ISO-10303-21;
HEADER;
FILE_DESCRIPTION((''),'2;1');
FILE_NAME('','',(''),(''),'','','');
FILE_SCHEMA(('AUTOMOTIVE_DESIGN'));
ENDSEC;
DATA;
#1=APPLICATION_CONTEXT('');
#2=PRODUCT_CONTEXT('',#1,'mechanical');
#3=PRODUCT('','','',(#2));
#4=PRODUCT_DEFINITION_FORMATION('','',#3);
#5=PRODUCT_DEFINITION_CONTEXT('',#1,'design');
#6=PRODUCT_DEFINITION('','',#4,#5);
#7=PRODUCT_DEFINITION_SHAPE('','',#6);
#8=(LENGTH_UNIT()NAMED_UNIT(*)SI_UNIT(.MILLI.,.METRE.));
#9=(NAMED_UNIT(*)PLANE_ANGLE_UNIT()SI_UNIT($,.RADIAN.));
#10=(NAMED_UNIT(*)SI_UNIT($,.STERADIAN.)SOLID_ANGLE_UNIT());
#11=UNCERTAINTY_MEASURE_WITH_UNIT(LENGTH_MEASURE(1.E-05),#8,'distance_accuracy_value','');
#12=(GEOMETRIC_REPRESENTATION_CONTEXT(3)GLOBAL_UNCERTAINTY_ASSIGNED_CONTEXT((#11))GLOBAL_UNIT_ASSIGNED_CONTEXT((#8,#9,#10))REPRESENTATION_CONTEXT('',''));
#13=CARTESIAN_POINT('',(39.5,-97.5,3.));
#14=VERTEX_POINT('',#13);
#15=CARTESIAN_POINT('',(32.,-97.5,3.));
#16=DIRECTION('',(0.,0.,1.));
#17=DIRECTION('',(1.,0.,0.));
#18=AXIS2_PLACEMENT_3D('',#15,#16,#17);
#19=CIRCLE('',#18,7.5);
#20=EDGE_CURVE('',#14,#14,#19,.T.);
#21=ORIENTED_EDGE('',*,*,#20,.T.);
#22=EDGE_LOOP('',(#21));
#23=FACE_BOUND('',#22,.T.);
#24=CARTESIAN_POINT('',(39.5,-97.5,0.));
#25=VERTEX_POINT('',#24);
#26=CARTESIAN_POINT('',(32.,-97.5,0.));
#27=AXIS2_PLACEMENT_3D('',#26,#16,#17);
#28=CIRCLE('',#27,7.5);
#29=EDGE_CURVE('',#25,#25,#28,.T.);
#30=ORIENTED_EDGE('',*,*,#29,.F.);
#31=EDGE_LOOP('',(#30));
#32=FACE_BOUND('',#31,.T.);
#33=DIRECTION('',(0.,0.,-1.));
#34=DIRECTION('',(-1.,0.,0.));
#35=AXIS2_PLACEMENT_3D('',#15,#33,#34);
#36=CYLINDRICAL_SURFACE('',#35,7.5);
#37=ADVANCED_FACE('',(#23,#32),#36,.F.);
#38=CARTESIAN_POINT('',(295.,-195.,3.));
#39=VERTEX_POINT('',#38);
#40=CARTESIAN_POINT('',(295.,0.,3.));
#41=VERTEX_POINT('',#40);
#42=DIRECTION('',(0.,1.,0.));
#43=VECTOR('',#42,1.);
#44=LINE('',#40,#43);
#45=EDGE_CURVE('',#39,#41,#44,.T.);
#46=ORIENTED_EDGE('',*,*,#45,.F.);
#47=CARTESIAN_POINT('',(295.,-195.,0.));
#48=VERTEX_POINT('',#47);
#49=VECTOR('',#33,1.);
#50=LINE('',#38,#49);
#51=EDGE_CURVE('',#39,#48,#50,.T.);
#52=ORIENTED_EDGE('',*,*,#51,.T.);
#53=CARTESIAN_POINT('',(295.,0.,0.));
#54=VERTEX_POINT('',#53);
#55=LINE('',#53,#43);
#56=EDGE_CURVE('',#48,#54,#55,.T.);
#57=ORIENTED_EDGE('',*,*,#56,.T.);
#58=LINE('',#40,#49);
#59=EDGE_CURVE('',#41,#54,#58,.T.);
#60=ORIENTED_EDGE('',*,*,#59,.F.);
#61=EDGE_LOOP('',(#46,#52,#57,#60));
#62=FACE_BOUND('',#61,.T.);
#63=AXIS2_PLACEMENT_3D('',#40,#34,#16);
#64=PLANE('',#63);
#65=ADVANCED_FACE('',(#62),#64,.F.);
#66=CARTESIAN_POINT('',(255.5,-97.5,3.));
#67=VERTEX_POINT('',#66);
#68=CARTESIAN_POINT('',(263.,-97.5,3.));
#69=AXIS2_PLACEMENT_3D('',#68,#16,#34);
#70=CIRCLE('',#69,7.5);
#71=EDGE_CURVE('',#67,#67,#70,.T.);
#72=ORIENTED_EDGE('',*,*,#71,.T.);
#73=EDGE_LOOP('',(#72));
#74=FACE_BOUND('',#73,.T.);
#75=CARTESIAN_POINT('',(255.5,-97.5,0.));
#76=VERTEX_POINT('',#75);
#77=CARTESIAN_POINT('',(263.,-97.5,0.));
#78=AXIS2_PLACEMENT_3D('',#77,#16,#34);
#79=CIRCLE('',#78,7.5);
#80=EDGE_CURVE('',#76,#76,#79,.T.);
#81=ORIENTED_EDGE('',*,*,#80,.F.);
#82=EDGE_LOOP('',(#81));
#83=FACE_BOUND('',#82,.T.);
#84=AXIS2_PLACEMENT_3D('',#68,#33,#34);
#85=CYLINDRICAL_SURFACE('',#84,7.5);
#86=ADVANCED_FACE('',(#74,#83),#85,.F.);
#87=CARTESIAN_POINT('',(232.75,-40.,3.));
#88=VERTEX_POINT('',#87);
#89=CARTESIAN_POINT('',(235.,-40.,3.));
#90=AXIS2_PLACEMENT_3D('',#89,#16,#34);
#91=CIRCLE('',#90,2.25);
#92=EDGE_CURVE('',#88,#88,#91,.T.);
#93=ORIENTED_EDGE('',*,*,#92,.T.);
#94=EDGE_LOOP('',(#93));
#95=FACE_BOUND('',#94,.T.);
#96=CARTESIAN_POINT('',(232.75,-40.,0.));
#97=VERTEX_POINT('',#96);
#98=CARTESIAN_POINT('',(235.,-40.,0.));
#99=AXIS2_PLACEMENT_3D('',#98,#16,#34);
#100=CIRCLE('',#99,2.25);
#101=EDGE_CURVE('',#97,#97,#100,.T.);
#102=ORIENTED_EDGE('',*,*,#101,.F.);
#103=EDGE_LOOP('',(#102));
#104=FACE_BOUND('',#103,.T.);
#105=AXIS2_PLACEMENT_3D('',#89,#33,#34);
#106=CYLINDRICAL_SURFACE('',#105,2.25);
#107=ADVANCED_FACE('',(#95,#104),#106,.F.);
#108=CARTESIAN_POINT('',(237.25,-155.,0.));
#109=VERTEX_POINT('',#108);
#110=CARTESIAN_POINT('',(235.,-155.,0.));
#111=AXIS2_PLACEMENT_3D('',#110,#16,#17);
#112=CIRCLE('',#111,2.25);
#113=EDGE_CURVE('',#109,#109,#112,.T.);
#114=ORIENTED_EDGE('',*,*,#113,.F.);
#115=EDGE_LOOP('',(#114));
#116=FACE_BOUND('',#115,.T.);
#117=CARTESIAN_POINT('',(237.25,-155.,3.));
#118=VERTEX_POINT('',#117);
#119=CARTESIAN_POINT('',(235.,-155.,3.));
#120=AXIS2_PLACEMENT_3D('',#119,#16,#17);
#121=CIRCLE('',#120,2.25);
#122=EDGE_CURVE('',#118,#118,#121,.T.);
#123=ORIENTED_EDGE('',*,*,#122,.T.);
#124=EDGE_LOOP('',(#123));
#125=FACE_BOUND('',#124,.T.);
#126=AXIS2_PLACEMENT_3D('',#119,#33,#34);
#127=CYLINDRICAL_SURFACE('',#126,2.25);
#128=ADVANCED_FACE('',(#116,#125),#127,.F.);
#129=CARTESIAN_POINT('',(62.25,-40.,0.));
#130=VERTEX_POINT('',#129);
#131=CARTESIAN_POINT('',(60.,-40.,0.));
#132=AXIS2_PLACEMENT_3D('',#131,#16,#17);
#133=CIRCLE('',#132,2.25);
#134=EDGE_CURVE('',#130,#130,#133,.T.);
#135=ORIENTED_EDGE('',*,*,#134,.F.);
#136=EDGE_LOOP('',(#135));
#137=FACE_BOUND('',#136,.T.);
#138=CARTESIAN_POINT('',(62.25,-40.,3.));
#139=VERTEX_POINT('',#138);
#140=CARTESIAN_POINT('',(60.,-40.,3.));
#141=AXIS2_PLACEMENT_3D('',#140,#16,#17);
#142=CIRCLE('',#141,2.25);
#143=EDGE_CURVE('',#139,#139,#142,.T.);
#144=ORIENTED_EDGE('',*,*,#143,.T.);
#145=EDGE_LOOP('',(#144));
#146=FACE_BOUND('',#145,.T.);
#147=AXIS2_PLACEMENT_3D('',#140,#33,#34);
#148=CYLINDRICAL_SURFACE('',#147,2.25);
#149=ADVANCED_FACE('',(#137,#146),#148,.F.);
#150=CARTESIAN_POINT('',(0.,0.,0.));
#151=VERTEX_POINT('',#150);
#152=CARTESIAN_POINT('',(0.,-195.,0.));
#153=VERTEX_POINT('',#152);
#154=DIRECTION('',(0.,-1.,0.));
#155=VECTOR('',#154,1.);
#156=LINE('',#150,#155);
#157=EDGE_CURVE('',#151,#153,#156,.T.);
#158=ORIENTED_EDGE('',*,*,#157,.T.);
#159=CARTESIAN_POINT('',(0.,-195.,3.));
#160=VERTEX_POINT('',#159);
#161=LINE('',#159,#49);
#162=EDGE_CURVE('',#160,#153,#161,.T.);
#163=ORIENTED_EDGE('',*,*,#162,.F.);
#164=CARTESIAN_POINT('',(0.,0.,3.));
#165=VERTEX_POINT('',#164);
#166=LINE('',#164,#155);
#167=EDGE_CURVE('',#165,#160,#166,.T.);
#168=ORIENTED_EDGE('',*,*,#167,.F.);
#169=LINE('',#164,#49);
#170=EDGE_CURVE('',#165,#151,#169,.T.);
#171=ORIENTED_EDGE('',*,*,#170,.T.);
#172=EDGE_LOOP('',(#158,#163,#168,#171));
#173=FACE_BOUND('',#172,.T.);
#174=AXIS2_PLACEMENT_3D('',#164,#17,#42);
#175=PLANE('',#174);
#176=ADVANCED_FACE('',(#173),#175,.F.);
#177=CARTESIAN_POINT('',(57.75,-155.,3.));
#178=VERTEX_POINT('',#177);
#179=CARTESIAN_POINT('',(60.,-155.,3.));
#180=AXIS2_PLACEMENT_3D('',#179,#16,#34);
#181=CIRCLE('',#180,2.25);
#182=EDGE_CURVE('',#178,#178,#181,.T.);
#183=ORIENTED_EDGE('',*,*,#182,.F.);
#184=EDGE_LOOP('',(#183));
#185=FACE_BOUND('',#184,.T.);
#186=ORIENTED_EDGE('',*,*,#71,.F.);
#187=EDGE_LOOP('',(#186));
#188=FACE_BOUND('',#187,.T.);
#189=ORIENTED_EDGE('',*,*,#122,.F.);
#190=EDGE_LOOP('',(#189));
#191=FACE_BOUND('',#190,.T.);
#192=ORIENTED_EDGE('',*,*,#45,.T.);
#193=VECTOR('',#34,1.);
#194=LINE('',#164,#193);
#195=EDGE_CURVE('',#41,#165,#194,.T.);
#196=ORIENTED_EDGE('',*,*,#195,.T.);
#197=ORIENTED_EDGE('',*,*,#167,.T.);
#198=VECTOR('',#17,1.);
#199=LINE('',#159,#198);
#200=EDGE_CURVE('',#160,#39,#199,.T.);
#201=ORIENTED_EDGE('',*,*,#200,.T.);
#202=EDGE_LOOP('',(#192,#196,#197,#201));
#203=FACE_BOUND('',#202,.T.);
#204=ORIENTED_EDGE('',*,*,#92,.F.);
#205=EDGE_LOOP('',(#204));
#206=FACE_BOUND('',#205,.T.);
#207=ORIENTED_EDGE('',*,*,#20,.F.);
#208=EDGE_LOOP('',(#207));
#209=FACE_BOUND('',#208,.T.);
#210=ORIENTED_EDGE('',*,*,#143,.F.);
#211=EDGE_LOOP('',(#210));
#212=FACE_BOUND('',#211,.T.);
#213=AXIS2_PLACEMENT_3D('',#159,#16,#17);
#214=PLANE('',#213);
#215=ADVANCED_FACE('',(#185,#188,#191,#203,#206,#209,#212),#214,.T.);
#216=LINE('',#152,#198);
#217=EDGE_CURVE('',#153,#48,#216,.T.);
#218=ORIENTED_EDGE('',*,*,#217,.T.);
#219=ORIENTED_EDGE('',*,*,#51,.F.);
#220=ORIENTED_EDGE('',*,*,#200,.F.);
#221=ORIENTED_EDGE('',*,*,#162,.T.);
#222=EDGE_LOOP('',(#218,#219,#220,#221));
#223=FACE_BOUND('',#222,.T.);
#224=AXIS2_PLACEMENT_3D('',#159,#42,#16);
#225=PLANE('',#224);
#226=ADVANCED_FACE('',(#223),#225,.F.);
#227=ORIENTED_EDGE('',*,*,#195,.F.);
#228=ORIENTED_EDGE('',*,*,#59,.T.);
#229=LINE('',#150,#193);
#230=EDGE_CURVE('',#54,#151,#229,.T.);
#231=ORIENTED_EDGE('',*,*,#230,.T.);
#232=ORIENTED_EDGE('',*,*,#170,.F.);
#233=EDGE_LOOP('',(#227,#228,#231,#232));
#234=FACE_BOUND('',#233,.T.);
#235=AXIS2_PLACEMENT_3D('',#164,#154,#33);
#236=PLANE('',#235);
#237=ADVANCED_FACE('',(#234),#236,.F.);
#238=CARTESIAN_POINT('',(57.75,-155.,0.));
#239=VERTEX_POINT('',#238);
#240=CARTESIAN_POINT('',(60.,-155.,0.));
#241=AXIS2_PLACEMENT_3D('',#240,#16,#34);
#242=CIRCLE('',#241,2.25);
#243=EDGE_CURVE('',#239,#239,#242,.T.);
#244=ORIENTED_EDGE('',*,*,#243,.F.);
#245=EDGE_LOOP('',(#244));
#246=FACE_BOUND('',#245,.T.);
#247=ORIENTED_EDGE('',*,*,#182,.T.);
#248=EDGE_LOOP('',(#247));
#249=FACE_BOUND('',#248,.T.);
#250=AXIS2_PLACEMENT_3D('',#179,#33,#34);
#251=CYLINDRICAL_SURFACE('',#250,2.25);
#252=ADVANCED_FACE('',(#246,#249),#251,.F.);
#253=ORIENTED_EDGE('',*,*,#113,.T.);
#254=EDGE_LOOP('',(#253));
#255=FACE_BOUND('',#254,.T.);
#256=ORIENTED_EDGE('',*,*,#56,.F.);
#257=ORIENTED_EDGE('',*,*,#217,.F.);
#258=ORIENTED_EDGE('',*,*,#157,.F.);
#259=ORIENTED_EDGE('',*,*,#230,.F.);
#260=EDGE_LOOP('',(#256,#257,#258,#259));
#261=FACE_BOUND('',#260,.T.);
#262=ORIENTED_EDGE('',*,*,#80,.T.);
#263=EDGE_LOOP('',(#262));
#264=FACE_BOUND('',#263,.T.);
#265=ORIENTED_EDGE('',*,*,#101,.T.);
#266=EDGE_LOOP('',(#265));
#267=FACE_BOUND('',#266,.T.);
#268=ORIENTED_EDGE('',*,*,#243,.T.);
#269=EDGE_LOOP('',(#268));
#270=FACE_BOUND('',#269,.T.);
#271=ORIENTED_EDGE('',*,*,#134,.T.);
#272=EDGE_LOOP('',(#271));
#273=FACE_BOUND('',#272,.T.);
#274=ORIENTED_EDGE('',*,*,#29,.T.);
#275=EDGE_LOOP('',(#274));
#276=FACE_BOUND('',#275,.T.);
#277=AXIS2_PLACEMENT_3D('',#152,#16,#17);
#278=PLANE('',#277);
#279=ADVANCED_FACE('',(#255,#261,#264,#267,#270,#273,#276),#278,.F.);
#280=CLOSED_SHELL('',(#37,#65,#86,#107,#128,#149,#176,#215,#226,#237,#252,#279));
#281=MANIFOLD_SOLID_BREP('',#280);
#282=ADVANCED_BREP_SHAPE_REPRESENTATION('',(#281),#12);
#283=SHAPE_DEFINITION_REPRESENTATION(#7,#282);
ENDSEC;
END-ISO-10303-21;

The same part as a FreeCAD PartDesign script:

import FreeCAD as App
import Part
import Sketcher
from FreeCAD import Vector

doc = App.newDocument("Part")
body = doc.addObject("PartDesign::Body", "Body")

sketch1 = body.newObject("Sketcher::SketchObject", "Sketch")
sketch1.AttachmentSupport = (doc.getObject("XY_Plane"), [""])
sketch1.MapMode = "FlatFace"
sketch1.addGeometry(Part.LineSegment(Vector(0, 0, 0), Vector(0, -195, 0)), False)
sketch1.addGeometry(Part.LineSegment(Vector(0, -195, 0), Vector(295, -195, 0)), False)
sketch1.addGeometry(Part.LineSegment(Vector(295, -195, 0), Vector(295, 0, 0)), False)
sketch1.addGeometry(Part.LineSegment(Vector(295, 0, 0), Vector(0, 0, 0)), False)
sketch1.addGeometry(Part.Circle(Vector(60, -155, 0), Vector(0, 0, 1), 2.2), False)
sketch1.addGeometry(Part.Circle(Vector(32, -97.5, 0), Vector(0, 0, 1), 7.5), False)
sketch1.addGeometry(Part.Circle(Vector(235, -155, 0), Vector(0, 0, 1), 2.2), False)
sketch1.addGeometry(Part.Circle(Vector(263, -97.5, 0), Vector(0, 0, 1), 7.5), False)
sketch1.addGeometry(Part.Circle(Vector(60, -40, 0), Vector(0, 0, 1), 2.2), False)
sketch1.addGeometry(Part.Circle(Vector(235, -40, 0), Vector(0, 0, 1), 2.2), False)
sketch1.addConstraint(Sketcher.Constraint("Coincident", 0, 2, 1, 1))
sketch1.addConstraint(Sketcher.Constraint("Coincident", 1, 2, 2, 1))
sketch1.addConstraint(Sketcher.Constraint("Coincident", 2, 2, 3, 1))
sketch1.addConstraint(Sketcher.Constraint("Coincident", 3, 2, 0, 1))
sketch1.addConstraint(Sketcher.Constraint("Vertical", 0))
sketch1.addConstraint(Sketcher.Constraint("Horizontal", 1))
sketch1.addConstraint(Sketcher.Constraint("Vertical", 2))
sketch1.addConstraint(Sketcher.Constraint("Horizontal", 3))
sketch1.addConstraint(Sketcher.Constraint("Coincident", 3, 2, -1, 1))
sketch1.addConstraint(Sketcher.Constraint("Equal", 4, 6))
sketch1.addConstraint(Sketcher.Constraint("Equal", 5, 7))
sketch1.addConstraint(Sketcher.Constraint("Equal", 6, 8))
sketch1.addConstraint(Sketcher.Constraint("Equal", 8, 9))
sketch1.addConstraint(Sketcher.Constraint("Horizontal", 4, 3, 6, 3))
sketch1.addConstraint(Sketcher.Constraint("Horizontal", 5, 3, 7, 3))
sketch1.addConstraint(Sketcher.Constraint("Horizontal", 8, 3, 9, 3))
sketch1.addConstraint(Sketcher.Constraint("Vertical", 4, 3, 8, 3))
sketch1.addConstraint(Sketcher.Constraint("Vertical", 6, 3, 9, 3))
sketch1.addConstraint(Sketcher.Constraint("Diameter", 5, 15.0))
sketch1.addConstraint(Sketcher.Constraint("Diameter", 4, 4.5))
sketch1.addConstraint(Sketcher.Constraint("DistanceX", 1, 1, 1, 2, 295.0))
sketch1.addConstraint(Sketcher.Constraint("DistanceY", 0, 2, 0, 1, 195.0))
sketch1.addConstraint(Sketcher.Constraint("DistanceX", -1, 1, 4, 3, 60.0))
sketch1.addConstraint(Sketcher.Constraint("DistanceY", 4, 3, -1, 1, 155.0))
sketch1.addConstraint(Sketcher.Constraint("DistanceX", -1, 1, 5, 3, 32.0))
sketch1.addConstraint(Sketcher.Constraint("DistanceX", -1, 1, 6, 3, 235.0))
sketch1.addConstraint(Sketcher.Constraint("DistanceX", -1, 1, 7, 3, 263.0))
sketch1.addConstraint(Sketcher.Constraint("DistanceY", 8, 3, -1, 1, 40.0))
sketch1.addConstraint(Sketcher.Constraint("DistanceY", 5, 3, -1, 1, 97.5))
pad1 = body.newObject("PartDesign::Pad", "Pad")
pad1.Profile = sketch1
pad1.Length = 3

doc.recompute()
